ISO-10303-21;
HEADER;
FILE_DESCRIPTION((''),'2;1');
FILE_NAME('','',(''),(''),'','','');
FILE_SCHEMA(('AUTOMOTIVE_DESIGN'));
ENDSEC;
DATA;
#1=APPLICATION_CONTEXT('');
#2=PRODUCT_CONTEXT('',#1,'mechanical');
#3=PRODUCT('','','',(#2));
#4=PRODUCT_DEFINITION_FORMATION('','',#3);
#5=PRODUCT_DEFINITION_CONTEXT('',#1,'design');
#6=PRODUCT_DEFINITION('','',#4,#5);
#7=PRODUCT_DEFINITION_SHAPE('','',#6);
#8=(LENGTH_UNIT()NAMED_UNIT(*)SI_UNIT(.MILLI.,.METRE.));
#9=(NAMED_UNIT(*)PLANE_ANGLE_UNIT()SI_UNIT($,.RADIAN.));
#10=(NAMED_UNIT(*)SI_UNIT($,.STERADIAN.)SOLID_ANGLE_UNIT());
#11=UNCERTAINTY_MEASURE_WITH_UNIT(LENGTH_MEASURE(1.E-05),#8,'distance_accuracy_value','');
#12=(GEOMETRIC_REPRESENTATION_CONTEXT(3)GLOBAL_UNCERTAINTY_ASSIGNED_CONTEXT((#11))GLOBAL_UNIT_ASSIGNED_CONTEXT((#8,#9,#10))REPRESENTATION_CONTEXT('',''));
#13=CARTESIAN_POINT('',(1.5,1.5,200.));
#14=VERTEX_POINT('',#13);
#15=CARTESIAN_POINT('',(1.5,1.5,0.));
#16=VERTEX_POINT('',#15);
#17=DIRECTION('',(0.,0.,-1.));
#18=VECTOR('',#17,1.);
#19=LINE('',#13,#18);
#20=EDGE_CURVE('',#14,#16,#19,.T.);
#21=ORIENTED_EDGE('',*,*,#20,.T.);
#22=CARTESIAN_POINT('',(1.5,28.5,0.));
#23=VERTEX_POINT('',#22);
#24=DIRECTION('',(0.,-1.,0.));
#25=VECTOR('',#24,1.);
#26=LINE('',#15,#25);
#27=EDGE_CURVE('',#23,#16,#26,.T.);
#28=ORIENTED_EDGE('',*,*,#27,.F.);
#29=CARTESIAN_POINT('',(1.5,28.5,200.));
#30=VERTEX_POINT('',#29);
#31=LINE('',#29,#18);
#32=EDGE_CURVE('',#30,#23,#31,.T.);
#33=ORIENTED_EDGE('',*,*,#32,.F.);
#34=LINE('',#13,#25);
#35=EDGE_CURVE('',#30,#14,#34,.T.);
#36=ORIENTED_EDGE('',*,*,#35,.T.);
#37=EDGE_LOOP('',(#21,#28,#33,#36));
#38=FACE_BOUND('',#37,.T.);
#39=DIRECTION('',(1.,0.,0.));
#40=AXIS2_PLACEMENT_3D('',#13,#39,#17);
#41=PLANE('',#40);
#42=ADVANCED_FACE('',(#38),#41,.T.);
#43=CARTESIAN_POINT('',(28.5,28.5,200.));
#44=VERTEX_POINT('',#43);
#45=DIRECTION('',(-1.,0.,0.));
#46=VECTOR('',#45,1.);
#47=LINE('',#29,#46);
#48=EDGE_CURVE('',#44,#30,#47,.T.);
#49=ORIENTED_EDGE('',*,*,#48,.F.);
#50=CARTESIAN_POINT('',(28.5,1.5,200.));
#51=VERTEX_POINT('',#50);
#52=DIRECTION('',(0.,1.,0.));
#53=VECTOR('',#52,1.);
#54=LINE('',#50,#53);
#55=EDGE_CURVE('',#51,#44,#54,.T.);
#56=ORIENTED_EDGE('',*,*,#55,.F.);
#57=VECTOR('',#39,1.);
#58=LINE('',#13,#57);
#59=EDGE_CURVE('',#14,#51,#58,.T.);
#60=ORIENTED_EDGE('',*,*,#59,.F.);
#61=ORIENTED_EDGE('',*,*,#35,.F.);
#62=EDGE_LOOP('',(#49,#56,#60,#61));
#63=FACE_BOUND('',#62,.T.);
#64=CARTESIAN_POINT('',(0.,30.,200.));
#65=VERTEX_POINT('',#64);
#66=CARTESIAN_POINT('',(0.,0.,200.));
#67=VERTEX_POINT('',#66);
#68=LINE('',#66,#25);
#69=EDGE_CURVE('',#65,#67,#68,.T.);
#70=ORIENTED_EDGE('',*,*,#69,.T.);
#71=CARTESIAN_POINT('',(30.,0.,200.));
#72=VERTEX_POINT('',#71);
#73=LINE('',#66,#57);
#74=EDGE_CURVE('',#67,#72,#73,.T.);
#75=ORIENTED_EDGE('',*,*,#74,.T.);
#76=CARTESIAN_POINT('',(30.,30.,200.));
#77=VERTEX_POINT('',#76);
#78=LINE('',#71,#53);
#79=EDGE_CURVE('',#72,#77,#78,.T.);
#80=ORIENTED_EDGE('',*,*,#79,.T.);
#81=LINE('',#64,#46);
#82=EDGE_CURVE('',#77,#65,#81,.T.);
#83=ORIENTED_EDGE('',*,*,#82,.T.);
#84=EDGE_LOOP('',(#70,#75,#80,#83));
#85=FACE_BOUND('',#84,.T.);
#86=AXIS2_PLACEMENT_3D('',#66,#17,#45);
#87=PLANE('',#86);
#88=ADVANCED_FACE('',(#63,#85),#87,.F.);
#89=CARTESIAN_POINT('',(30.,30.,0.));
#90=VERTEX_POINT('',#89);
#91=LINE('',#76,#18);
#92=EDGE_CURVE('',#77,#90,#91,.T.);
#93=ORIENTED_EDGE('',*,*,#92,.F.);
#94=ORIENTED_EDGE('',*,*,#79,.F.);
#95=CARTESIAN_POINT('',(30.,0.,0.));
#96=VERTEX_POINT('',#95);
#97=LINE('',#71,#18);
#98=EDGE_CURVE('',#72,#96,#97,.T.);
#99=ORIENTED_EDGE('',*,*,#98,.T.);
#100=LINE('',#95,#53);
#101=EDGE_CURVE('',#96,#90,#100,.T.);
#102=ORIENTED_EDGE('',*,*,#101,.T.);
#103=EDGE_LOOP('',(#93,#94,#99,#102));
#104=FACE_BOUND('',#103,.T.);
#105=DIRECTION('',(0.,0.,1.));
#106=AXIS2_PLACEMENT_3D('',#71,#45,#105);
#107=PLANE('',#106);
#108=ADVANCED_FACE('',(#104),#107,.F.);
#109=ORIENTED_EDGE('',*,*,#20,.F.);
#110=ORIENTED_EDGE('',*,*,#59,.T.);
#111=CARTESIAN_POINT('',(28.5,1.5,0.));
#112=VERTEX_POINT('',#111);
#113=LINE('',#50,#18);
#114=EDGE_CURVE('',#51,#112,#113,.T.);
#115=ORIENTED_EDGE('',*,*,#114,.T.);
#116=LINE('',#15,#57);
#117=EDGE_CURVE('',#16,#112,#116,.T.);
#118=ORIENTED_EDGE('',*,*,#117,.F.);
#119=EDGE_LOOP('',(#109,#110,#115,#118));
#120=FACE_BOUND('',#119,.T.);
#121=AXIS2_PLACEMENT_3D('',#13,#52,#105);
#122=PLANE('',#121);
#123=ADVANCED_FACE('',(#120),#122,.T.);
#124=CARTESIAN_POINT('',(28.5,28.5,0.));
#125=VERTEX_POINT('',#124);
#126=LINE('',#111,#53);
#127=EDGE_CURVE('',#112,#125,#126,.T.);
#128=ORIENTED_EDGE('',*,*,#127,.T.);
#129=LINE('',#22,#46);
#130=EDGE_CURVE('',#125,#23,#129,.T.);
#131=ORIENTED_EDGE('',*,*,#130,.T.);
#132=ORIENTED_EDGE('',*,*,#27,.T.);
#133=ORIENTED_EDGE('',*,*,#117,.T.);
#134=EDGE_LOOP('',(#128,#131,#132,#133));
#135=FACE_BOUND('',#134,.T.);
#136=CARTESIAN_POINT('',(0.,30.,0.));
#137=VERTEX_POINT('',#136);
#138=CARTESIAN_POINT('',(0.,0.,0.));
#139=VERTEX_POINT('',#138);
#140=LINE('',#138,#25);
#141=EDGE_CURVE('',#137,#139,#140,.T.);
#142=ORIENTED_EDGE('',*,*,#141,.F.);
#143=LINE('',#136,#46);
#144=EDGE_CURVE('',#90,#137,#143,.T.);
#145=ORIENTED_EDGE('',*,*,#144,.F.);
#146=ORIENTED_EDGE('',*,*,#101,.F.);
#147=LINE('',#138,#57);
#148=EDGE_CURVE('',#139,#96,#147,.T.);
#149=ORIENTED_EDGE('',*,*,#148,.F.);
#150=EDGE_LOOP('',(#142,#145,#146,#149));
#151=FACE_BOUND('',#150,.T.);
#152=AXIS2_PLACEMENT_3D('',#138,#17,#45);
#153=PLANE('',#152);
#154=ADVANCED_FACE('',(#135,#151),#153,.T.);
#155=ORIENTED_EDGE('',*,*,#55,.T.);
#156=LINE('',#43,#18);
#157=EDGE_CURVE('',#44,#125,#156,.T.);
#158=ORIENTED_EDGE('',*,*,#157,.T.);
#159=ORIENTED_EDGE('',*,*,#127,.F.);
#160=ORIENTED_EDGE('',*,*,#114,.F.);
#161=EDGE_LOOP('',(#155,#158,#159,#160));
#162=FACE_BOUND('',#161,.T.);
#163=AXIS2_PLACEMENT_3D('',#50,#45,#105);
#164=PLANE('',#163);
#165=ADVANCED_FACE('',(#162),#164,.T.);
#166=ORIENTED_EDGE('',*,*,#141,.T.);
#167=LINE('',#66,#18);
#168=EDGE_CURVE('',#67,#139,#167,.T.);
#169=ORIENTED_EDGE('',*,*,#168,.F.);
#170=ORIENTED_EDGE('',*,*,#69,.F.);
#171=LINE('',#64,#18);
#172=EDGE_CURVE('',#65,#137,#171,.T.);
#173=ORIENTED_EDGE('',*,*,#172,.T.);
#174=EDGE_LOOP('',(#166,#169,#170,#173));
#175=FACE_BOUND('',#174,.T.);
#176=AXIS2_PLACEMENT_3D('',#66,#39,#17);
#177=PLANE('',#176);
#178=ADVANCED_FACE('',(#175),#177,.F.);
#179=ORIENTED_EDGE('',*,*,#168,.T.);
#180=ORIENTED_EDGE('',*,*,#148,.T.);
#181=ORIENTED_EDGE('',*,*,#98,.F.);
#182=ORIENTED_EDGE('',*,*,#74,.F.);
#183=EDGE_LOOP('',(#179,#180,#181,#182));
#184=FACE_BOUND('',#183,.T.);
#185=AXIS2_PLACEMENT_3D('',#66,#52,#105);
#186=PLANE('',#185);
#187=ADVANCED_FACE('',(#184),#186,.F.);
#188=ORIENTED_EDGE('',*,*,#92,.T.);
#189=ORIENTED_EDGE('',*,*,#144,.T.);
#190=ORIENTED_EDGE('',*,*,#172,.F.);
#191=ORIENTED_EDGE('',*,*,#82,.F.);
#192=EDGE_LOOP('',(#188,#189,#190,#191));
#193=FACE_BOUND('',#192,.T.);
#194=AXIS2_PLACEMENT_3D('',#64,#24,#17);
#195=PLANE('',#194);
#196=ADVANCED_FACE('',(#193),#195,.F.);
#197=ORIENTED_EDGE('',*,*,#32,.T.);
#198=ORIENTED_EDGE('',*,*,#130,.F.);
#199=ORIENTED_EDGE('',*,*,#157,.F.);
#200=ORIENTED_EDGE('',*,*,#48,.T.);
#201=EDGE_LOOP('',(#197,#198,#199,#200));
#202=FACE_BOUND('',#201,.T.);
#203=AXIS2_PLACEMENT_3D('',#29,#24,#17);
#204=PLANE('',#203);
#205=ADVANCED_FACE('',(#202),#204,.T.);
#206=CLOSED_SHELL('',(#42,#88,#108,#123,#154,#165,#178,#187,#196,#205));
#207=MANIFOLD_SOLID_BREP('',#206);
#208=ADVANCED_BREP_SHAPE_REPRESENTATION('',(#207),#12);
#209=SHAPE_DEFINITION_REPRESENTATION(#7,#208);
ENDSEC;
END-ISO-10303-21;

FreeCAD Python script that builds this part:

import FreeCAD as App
import Part
import Sketcher
from FreeCAD import Vector


def add_polygon(sketch, points):
    """Adds a closed chain of lines whose ends are joined by coincident constraints."""
    first, n = sketch.GeometryCount, len(points)
    for a, b in zip(points, points[1:] + points[:1]):
        sketch.addGeometry(Part.LineSegment(App.Vector(*a, 0), App.Vector(*b, 0)), False)
    for i in range(n):
        sketch.addConstraint(Sketcher.Constraint("Coincident", first + i, 2, first + (i + 1) % n, 1))

doc = App.newDocument("Part")
body = doc.addObject("PartDesign::Body", "Body")

# Sketch on XY plane
sketch1 = body.newObject("Sketcher::SketchObject", "Sketch")
sketch1.AttachmentSupport = (doc.getObject("XY_Plane"), [""])
sketch1.MapMode = "FlatFace"
add_polygon(sketch1, [(0, 30), (0, 0), (30, 0), (30, 30)])  # lines 0-3
add_polygon(sketch1, [(28.5, 1.5), (1.5, 1.5), (1.5, 28.5), (28.5, 28.5)])  # lines 4-7
sketch1.addConstraint([
    Sketcher.Constraint("Vertical", 0),
    Sketcher.Constraint("Horizontal", 1),
    Sketcher.Constraint("Vertical", 2),
    Sketcher.Constraint("Horizontal", 3),
    Sketcher.Constraint("Horizontal", 4),
    Sketcher.Constraint("Vertical", 5),
    Sketcher.Constraint("Horizontal", 6),
    Sketcher.Constraint("Vertical", 7),
    Sketcher.Constraint("Coincident", 0, 2, -1, 1),
    Sketcher.Constraint("Equal", 3, 0),
    Sketcher.Constraint("Equal", 6, 5),
    Sketcher.Constraint("DistanceX", 1, 1, 1, 2, 30.0),
    Sketcher.Constraint("DistanceX", 4, 2, 4, 1, 27.0),
    Sketcher.Constraint("DistanceX", -1, 1, 4, 2, 1.5),
    Sketcher.Constraint("DistanceY", -1, 1, 4, 2, 1.5),
])
pad1 = body.newObject("PartDesign::Pad", "Pad")
pad1.Profile = sketch1
pad1.Length = 200

doc.recompute()
